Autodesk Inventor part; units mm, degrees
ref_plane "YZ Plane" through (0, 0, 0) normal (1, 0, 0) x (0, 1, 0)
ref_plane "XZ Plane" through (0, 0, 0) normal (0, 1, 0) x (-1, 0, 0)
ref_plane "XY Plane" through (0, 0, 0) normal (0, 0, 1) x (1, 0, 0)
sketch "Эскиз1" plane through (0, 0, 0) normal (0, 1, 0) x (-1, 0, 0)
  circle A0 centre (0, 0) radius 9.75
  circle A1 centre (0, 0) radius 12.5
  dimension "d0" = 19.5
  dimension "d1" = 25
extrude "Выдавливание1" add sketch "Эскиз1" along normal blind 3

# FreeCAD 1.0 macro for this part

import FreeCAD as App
import Part
import Sketcher
Q = App.Units.Quantity

doc = App.newDocument("Part")
params = doc.addObject("Spreadsheet::Sheet", "Params")
for row, (alias, value) in enumerate([
    ("sketch1_diameter", "25 mm"),
    ("sketch1_diameter2", "19.5 mm"),
    ("pad1_length", "3 mm"),
], start=1):
    params.set(f"A{row}", alias)
    params.set(f"B{row}", "=" + value)
    params.setAlias(f"B{row}", alias)

body = doc.addObject("PartDesign::Body", "Body")

# Sketch on XZ plane
sketch1 = doc.addObject("Sketcher::SketchObject", "Sketch")
body.addObject(sketch1)
sketch1.AttachmentSupport = (doc.XZ_Plane, [""])
sketch1.MapMode = "FlatFace"
sketch1.addGeometry(Part.Circle(App.Vector(0, 0, 0), App.Vector(0, 0, 1), 12), False)
sketch1.addGeometry(Part.Circle(App.Vector(0, 0, 0), App.Vector(0, 0, 1), 10), False)
sketch1.addConstraint(Sketcher.Constraint("Coincident", 0, 3, -1, 1))
sketch1.addConstraint(Sketcher.Constraint("Coincident", 1, 3, -1, 1))
sketch1.addConstraint(Sketcher.Constraint("Diameter", 0, Q("25 mm")))
sketch1.addConstraint(Sketcher.Constraint("Diameter", 1, Q("19.5 mm")))
sketch1.setExpression("Constraints[2]", "Params.sketch1_diameter")
sketch1.setExpression("Constraints[3]", "Params.sketch1_diameter2")
pad1 = doc.addObject("PartDesign::Pad", "Pad")
body.addObject(pad1)
pad1.Profile = sketch1
pad1.setExpression("Length", "Params.pad1_length")
pad1.Reversed = True

doc.recompute()
